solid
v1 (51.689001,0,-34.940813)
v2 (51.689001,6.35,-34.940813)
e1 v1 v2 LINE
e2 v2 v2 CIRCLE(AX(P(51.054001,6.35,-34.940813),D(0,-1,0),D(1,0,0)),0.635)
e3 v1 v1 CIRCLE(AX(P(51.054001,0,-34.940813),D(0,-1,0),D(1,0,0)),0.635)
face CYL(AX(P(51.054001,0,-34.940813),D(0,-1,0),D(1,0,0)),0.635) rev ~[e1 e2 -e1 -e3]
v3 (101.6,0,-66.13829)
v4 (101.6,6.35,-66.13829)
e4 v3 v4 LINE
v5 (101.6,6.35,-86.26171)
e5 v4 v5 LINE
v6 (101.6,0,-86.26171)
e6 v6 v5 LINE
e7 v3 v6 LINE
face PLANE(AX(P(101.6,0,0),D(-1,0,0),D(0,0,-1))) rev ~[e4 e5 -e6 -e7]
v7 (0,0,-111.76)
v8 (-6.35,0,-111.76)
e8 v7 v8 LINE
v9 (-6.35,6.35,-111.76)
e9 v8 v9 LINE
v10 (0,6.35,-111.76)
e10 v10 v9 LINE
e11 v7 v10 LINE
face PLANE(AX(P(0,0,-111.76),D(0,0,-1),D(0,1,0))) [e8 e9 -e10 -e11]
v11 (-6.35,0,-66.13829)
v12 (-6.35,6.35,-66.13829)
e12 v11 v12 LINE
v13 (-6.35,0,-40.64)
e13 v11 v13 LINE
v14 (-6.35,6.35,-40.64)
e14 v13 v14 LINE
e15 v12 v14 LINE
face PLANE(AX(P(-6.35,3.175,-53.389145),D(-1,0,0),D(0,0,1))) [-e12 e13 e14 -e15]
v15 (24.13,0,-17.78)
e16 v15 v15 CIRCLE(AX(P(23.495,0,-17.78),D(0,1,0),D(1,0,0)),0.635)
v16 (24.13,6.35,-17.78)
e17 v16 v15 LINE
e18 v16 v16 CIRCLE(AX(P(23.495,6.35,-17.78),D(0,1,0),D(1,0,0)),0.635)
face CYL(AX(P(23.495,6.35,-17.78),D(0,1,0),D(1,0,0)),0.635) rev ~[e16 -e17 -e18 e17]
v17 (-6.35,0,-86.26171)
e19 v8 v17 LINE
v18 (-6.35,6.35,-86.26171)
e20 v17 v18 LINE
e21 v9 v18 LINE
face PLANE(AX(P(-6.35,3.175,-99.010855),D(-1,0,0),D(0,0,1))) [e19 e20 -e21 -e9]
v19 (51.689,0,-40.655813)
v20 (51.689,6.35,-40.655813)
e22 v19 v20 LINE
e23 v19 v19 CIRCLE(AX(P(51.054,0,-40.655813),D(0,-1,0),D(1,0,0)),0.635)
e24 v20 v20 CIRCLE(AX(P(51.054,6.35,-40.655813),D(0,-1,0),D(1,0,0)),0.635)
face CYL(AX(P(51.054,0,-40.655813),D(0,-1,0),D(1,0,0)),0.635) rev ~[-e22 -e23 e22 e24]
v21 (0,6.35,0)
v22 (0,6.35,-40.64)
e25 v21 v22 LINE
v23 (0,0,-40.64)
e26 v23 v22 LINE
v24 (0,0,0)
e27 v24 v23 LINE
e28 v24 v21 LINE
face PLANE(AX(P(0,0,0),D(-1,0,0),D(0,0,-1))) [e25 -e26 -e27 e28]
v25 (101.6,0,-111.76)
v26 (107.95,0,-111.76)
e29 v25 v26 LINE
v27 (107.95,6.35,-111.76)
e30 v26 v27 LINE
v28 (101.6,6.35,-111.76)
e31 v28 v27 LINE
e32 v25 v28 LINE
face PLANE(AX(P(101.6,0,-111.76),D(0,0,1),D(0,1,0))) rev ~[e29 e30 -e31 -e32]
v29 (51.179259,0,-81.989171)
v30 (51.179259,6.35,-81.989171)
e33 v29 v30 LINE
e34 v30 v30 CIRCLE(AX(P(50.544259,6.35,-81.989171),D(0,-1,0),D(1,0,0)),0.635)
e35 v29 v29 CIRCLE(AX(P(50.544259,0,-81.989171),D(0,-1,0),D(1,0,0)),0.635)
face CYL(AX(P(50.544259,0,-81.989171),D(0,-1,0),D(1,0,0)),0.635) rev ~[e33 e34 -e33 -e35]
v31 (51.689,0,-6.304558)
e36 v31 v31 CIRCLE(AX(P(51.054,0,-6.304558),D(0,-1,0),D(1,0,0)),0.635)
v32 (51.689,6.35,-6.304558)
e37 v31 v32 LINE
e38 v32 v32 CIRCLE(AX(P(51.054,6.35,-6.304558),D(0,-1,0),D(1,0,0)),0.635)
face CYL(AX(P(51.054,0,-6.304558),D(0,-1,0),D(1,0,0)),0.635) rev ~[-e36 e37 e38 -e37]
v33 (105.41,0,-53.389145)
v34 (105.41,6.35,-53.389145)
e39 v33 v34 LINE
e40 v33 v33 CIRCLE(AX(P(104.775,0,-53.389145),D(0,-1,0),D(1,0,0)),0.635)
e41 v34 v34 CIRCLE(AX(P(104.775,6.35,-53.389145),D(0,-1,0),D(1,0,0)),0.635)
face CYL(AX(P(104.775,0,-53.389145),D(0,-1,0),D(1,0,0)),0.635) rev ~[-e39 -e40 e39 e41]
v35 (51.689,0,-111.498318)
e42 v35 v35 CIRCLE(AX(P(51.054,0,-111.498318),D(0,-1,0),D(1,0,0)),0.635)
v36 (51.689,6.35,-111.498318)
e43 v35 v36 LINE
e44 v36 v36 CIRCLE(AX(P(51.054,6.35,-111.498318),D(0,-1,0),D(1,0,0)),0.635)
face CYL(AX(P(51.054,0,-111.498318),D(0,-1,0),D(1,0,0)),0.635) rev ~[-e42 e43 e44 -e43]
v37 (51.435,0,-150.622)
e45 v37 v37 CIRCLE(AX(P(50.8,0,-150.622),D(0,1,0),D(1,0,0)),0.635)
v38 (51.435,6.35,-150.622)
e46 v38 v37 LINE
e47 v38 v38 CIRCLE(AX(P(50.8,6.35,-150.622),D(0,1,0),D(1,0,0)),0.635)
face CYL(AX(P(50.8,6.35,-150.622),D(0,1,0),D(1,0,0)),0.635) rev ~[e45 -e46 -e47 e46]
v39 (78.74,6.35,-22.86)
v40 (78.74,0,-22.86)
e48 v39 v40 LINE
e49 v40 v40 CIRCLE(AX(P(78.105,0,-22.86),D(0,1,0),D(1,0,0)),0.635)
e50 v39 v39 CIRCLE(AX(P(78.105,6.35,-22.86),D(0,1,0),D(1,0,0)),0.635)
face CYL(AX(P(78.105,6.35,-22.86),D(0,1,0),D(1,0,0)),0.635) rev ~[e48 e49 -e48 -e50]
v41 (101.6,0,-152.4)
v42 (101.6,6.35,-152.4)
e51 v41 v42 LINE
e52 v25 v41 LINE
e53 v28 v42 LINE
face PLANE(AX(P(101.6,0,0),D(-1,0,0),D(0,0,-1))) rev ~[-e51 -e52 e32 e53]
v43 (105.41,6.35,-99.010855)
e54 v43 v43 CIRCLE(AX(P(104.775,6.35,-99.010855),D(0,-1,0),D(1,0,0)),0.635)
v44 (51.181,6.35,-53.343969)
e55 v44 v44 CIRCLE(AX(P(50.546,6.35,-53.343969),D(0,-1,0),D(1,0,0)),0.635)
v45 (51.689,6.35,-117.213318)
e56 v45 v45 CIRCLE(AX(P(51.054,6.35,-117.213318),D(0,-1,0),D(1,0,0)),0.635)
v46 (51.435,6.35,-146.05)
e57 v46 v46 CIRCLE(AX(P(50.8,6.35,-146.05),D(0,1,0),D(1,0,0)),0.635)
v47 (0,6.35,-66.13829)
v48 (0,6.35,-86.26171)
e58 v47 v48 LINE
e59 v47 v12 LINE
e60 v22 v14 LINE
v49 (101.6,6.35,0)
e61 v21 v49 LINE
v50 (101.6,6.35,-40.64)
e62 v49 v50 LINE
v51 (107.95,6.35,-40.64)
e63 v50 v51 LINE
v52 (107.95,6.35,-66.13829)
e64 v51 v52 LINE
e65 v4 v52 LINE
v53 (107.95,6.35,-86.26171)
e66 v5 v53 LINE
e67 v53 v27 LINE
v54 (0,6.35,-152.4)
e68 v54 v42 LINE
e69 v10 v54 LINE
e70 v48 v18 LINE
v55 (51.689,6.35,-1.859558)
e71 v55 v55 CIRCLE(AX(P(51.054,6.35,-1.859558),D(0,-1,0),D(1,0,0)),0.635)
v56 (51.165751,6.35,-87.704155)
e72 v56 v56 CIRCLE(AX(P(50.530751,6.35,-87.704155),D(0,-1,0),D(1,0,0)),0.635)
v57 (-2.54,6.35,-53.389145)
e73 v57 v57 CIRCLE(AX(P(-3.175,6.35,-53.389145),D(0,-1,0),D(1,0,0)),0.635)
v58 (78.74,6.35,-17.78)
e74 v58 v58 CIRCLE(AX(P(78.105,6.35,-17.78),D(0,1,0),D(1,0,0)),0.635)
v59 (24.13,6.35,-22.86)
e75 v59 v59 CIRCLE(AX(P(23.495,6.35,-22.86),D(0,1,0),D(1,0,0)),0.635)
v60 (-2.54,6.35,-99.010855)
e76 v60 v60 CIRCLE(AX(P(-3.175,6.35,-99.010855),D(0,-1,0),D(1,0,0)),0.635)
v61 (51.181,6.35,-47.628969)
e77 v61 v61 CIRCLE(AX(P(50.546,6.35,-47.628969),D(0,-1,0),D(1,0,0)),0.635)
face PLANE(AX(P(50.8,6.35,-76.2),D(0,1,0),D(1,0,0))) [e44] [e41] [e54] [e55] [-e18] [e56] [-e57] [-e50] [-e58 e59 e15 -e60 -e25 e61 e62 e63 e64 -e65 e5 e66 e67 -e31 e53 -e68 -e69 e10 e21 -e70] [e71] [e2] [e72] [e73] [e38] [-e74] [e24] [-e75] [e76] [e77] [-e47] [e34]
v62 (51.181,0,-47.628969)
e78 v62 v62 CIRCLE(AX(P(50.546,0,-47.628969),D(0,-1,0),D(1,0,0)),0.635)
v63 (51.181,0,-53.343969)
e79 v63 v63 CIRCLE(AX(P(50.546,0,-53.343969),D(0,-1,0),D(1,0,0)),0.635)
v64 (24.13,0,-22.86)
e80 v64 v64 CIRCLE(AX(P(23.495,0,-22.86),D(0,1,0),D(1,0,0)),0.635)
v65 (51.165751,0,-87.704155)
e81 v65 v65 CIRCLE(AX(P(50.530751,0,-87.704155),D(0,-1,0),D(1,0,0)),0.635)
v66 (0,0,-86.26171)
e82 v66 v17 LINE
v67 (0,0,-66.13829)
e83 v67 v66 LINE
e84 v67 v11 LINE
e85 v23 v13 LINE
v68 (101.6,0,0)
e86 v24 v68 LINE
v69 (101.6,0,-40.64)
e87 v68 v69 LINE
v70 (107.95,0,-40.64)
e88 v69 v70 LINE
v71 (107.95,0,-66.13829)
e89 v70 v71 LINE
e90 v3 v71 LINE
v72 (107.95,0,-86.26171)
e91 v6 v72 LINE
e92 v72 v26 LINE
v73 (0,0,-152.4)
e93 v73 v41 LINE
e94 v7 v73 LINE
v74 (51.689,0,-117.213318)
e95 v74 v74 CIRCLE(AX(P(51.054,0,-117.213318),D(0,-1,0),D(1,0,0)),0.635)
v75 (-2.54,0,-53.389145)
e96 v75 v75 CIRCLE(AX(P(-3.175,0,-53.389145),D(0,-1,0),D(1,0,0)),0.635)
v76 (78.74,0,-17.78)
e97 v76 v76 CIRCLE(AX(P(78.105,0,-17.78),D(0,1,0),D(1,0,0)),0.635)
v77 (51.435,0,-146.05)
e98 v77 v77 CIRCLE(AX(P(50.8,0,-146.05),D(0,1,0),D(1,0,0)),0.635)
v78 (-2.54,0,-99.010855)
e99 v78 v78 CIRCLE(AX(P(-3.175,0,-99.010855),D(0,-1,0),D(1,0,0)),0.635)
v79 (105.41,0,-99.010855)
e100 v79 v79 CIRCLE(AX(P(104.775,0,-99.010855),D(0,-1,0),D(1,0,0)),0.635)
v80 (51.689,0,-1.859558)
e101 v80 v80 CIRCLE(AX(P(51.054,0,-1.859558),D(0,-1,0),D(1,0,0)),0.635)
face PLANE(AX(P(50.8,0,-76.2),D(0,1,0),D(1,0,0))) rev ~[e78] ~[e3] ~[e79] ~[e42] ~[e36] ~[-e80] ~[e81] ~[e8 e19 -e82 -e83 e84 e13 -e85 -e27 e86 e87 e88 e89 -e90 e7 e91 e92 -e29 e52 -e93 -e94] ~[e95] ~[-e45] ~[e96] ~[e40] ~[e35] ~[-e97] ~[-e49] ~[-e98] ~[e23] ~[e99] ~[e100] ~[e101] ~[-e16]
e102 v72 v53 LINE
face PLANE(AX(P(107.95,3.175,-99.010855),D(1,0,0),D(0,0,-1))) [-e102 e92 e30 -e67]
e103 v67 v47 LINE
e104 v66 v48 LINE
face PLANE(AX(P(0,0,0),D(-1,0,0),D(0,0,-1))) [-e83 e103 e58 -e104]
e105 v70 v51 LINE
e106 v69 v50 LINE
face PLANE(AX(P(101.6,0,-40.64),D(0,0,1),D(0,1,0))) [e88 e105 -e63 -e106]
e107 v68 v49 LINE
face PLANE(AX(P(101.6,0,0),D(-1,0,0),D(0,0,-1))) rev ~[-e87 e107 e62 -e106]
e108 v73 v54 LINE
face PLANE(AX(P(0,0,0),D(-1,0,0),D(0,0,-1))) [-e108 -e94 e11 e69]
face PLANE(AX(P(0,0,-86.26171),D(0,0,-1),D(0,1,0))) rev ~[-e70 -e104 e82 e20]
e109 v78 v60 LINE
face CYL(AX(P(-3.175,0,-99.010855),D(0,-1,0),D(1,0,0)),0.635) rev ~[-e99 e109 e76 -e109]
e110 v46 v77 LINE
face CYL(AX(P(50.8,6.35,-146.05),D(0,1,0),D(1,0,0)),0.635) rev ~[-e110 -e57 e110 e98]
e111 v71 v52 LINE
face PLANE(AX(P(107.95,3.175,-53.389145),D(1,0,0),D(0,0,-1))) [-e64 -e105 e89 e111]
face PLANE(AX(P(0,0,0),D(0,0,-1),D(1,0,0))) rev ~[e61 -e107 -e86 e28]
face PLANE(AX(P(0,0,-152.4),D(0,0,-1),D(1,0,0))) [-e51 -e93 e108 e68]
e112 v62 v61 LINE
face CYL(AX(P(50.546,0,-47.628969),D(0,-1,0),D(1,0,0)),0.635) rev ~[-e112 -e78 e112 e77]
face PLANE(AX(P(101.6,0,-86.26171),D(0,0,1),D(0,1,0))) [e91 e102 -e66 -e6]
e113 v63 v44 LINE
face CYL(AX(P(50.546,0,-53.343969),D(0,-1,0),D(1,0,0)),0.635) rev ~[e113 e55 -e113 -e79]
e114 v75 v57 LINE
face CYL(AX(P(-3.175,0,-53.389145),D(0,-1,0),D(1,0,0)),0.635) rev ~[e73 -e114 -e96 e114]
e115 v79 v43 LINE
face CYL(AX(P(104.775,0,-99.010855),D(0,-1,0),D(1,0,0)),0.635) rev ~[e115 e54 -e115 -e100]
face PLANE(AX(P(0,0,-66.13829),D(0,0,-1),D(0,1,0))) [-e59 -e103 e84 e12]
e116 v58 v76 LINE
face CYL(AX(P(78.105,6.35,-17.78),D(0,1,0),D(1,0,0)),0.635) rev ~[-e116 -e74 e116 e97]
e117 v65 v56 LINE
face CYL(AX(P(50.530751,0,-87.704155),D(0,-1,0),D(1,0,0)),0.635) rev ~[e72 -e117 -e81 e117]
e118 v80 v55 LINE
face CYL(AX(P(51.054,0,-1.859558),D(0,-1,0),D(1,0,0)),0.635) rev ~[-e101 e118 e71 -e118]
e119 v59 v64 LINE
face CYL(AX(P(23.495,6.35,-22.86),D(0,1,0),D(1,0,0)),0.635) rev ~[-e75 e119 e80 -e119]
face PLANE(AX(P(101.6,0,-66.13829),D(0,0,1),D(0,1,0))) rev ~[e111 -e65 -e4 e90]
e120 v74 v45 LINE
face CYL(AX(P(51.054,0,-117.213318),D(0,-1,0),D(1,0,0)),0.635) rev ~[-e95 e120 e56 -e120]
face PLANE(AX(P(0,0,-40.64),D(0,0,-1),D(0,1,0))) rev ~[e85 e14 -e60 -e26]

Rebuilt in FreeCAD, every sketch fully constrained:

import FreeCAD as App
import Part
import Sketcher
from FreeCAD import Vector
Q = App.Units.Quantity

doc = App.newDocument("Part")
body = doc.addObject("PartDesign::Body", "Body")

# Sketch on XZ plane
sketch1 = body.newObject("Sketcher::SketchObject", "Sketch")
sketch1.AttachmentSupport = (doc.getObject("XZ_Plane"), [""])
sketch1.MapMode = "FlatFace"
sketch1.addGeometry([
    Part.LineSegment(Vector(0, -152.4, 0), Vector(0, 0, 0)),
    Part.LineSegment(Vector(0, 0, 0), Vector(101.6, 0, 0)),
    Part.LineSegment(Vector(101.6, 0, 0), Vector(101.6, -152.4, 0)),
    Part.LineSegment(Vector(101.6, -152.4, 0), Vector(0, -152.4, 0)),
], False)
sketch1.addConstraint([
    Sketcher.Constraint("Coincident", 0, 2, 1, 1),
    Sketcher.Constraint("Coincident", 1, 2, 2, 1),
    Sketcher.Constraint("Coincident", 2, 2, 3, 1),
    Sketcher.Constraint("Coincident", 3, 2, 0, 1),
    Sketcher.Constraint("Vertical", 0),
    Sketcher.Constraint("Horizontal", 1),
    Sketcher.Constraint("Vertical", 2),
    Sketcher.Constraint("Horizontal", 3),
    Sketcher.Constraint("Coincident", 0, 2, -1, 1),
    Sketcher.Constraint("DistanceX", 1, 1, 1, 2, Q("4 in")),
    Sketcher.Constraint("DistanceY", 0, 1, 0, 2, Q("6 in")),
])
pad1 = body.newObject("PartDesign::Pad", "Pad")
pad1.Profile = sketch1
pad1.Length = Q("0.25 in")
pad1.Reversed = True

# Sketch on YZ plane
sketch2 = body.newObject("Sketcher::SketchObject", "Sketch001")
sketch2.AttachmentSupport = (doc.getObject("YZ_Plane"), [""])
sketch2.MapMode = "FlatFace"
sketch2.AttachmentOffset = App.Placement(Vector(0, 0, 4 * 25.4), App.Rotation())
sketch2.addGeometry([
    Part.LineSegment(Vector(6.35, -40.64, 0), Vector(0, -40.64, 0)),  # 0
    Part.LineSegment(Vector(0, -40.64, 0), Vector(0, -66.13829, 0)),  # 1
    Part.LineSegment(Vector(0, -66.13829, 0), Vector(6.35, -66.13829, 0)),  # 2
    Part.LineSegment(Vector(6.35, -66.13829, 0), Vector(6.35, -40.64, 0)),  # 3
    Part.LineSegment(Vector(6.35, -86.26171, 0), Vector(0, -86.26171, 0)),  # 4
    Part.LineSegment(Vector(0, -86.26171, 0), Vector(0, -111.76, 0)),  # 5
    Part.LineSegment(Vector(0, -111.76, 0), Vector(6.35, -111.76, 0)),  # 6
    Part.LineSegment(Vector(6.35, -111.76, 0), Vector(6.35, -86.26171, 0)),  # 7
], False)
sketch2.addConstraint([
    Sketcher.Constraint("Coincident", 0, 2, 1, 1),
    Sketcher.Constraint("Coincident", 1, 2, 2, 1),
    Sketcher.Constraint("Coincident", 2, 2, 3, 1),
    Sketcher.Constraint("Coincident", 3, 2, 0, 1),
    Sketcher.Constraint("Coincident", 4, 2, 5, 1),
    Sketcher.Constraint("Coincident", 5, 2, 6, 1),
    Sketcher.Constraint("Coincident", 6, 2, 7, 1),
    Sketcher.Constraint("Coincident", 7, 2, 4, 1),
    Sketcher.Constraint("Horizontal", 0),
    Sketcher.Constraint("Vertical", 1),
    Sketcher.Constraint("Horizontal", 2),
    Sketcher.Constraint("Vertical", 3),
    Sketcher.Constraint("Horizontal", 4),
    Sketcher.Constraint("Vertical", 5),
    Sketcher.Constraint("Horizontal", 6),
    Sketcher.Constraint("Vertical", 7),
    Sketcher.Constraint("PointOnObject", 0, 2, -2),
    Sketcher.Constraint("PointOnObject", 4, 2, -2),
    Sketcher.Constraint("Vertical", 3, 2, 6, 2),
    Sketcher.Constraint("Equal", 3, 5),
    Sketcher.Constraint("DistanceX", 0, 2, 0, 1, Q("0.25 in")),
    Sketcher.Constraint("DistanceY", 0, 2, -1, 1, Q("1.6 in")),
    Sketcher.Constraint("DistanceY", 5, 2, -1, 1, Q("4.4 in")),
    Sketcher.Constraint("DistanceY", 1, 2, 1, 1, Q("25.49829 mm")),
])
pad2 = body.newObject("PartDesign::Pad", "Pad001")
pad2.Profile = sketch2
pad2.Length = Q("0.25 in")

# Sketch on YZ plane
sketch3 = body.newObject("Sketcher::SketchObject", "Sketch002")
sketch3.AttachmentSupport = (doc.getObject("YZ_Plane"), [""])
sketch3.MapMode = "FlatFace"
sketch3.addGeometry([
    Part.LineSegment(Vector(6.35, -111.76, 0), Vector(0, -111.76, 0)),  # 0
    Part.LineSegment(Vector(0, -111.76, 0), Vector(0, -86.26171, 0)),  # 1
    Part.LineSegment(Vector(0, -86.26171, 0), Vector(6.35, -86.26171, 0)),  # 2
    Part.LineSegment(Vector(6.35, -86.26171, 0), Vector(6.35, -111.76, 0)),  # 3
    Part.LineSegment(Vector(6.35, -66.13829, 0), Vector(0, -66.13829, 0)),  # 4
    Part.LineSegment(Vector(0, -66.13829, 0), Vector(0, -40.64, 0)),  # 5
    Part.LineSegment(Vector(0, -40.64, 0), Vector(6.35, -40.64, 0)),  # 6
    Part.LineSegment(Vector(6.35, -40.64, 0), Vector(6.35, -66.13829, 0)),  # 7
], False)
sketch3.addConstraint([
    Sketcher.Constraint("Coincident", 0, 2, 1, 1),
    Sketcher.Constraint("Coincident", 1, 2, 2, 1),
    Sketcher.Constraint("Coincident", 2, 2, 3, 1),
    Sketcher.Constraint("Coincident", 3, 2, 0, 1),
    Sketcher.Constraint("Coincident", 4, 2, 5, 1),
    Sketcher.Constraint("Coincident", 5, 2, 6, 1),
    Sketcher.Constraint("Coincident", 6, 2, 7, 1),
    Sketcher.Constraint("Coincident", 7, 2, 4, 1),
    Sketcher.Constraint("Horizontal", 0),
    Sketcher.Constraint("Vertical", 1),
    Sketcher.Constraint("Horizontal", 2),
    Sketcher.Constraint("Vertical", 3),
    Sketcher.Constraint("Horizontal", 4),
    Sketcher.Constraint("Vertical", 5),
    Sketcher.Constraint("Horizontal", 6),
    Sketcher.Constraint("Vertical", 7),
    Sketcher.Constraint("PointOnObject", 0, 2, -2),
    Sketcher.Constraint("PointOnObject", 4, 2, -2),
    Sketcher.Constraint("Vertical", 3, 2, 6, 2),
    Sketcher.Constraint("Equal", 3, 5),
    Sketcher.Constraint("DistanceX", 0, 2, 0, 1, Q("0.25 in")),
    Sketcher.Constraint("DistanceY", 0, 2, -1, 1, Q("4.4 in")),
    Sketcher.Constraint("DistanceY", 5, 2, -1, 1, Q("1.6 in")),
    Sketcher.Constraint("DistanceY", 1, 1, 1, 2, Q("25.49829 mm")),
])
pad3 = body.newObject("PartDesign::Pad", "Pad002")
pad3.Profile = sketch3
pad3.Length = Q("0.25 in")
pad3.Reversed = True

# Sketch on XZ plane
sketch4 = body.newObject("Sketcher::SketchObject", "Sketch003")
sketch4.AttachmentSupport = (doc.getObject("XZ_Plane"), [""])
sketch4.MapMode = "FlatFace"
sketch4.addGeometry([
    Part.Circle(Vector(-3.175, -53.389145, 0), Vector(0, 0, 1), 0.635),
    Part.Circle(Vector(-3.175, -99.010855, 0), Vector(0, 0, 1), 0.635),
    Part.Circle(Vector(104.775, -53.389145, 0), Vector(0, 0, 1), 0.635),
    Part.Circle(Vector(104.775, -99.010855, 0), Vector(0, 0, 1), 0.635),
], False)
sketch4.addConstraint([
    Sketcher.Constraint("Equal", 0, 1),
    Sketcher.Constraint("Equal", 1, 2),
    Sketcher.Constraint("Equal", 2, 3),
    Sketcher.Constraint("Horizontal", 0, 3, 2, 3),
    Sketcher.Constraint("Horizontal", 1, 3, 3, 3),
    Sketcher.Constraint("Vertical", 0, 3, 1, 3),
    Sketcher.Constraint("Vertical", 2, 3, 3, 3),
    Sketcher.Constraint("Diameter", 0, Q("0.05 in")),
    Sketcher.Constraint("DistanceX", 0, 3, 2, 3, Q("4.25 in")),
    Sketcher.Constraint("DistanceX", 0, 3, -1, 1, Q("0.125 in")),
    Sketcher.Constraint("DistanceY", 1, 3, 0, 3, Q("45.62171 mm")),
    Sketcher.Constraint("DistanceY", 0, 3, -1, 1, Q("53.389145 mm")),
])
pocket1 = body.newObject("PartDesign::Pocket", "Pocket")
pocket1.Profile = sketch4
pocket1.Length = Q("0.25 in")

# Sketch on XZ plane
sketch5 = body.newObject("Sketcher::SketchObject", "Sketch004")
sketch5.AttachmentSupport = (doc.getObject("XZ_Plane"), [""])
sketch5.MapMode = "FlatFace"
sketch5.addGeometry([
    Part.Circle(Vector(51.054, -6.304558, 0), Vector(0, 0, 1), 0.635),  # 0
    Part.Circle(Vector(51.054001, -34.940813, 0), Vector(0, 0, 1), 0.635),  # 1
    Part.Circle(Vector(51.054, -40.655813, 0), Vector(0, 0, 1), 0.635),  # 2
    Part.Circle(Vector(51.054, -1.859558, 0), Vector(0, 0, 1), 0.635),  # 3
    Part.Circle(Vector(50.530751, -87.704155, 0), Vector(0, 0, 1), 0.635),  # 4
    Part.Circle(Vector(50.546, -47.628969, 0), Vector(0, 0, 1), 0.635),  # 5
    Part.Circle(Vector(50.546, -53.343969, 0), Vector(0, 0, 1), 0.635),  # 6
    Part.Circle(Vector(50.544259, -81.989171, 0), Vector(0, 0, 1), 0.635),  # 7
    Part.Circle(Vector(51.054, -111.498318, 0), Vector(0, 0, 1), 0.635),  # 8
    Part.Circle(Vector(51.054, -117.213318, 0), Vector(0, 0, 1), 0.635),  # 9
], False)
sketch5.addConstraint([
    Sketcher.Constraint("Equal", 0, 1),
    Sketcher.Constraint("Equal", 1, 2),
    Sketcher.Constraint("Equal", 2, 3),
    Sketcher.Constraint("Equal", 3, 4),
    Sketcher.Constraint("Equal", 4, 5),
    Sketcher.Constraint("Equal", 5, 6),
    Sketcher.Constraint("Equal", 6, 7),
    Sketcher.Constraint("Equal", 7, 8),
    Sketcher.Constraint("Equal", 8, 9),
    Sketcher.Constraint("Vertical", 0, 3, 1, 3),
    Sketcher.Constraint("Vertical", 1, 3, 2, 3),
    Sketcher.Constraint("Vertical", 2, 3, 3, 3),
    Sketcher.Constraint("Vertical", 5, 3, 6, 3),
    Sketcher.Constraint("Vertical", 3, 3, 8, 3),
    Sketcher.Constraint("Vertical", 8, 3, 9, 3),
    Sketcher.Constraint("Diameter", 0, Q("0.05 in")),
    Sketcher.Constraint("DistanceX", -1, 1, 0, 3, Q("2.01 in")),
    Sketcher.Constraint("DistanceX", -1, 1, 5, 3, Q("1.99 in")),
    Sketcher.Constraint("DistanceY", 2, 3, 1, 3, Q("0.225 in")),
    Sketcher.Constraint("DistanceY", 0, 3, 3, 3, Q("0.175 in")),
    Sketcher.Constraint("DistanceY", 6, 3, 5, 3, Q("0.225 in")),
    Sketcher.Constraint("DistanceY", 9, 3, 8, 3, Q("0.225 in")),
    Sketcher.Constraint("DistanceY", 7, 3, 6, 3, Q("28.645202 mm")),
    Sketcher.Constraint("DistanceY", 0, 3, -1, 1, Q("6.304558 mm")),
    Sketcher.Constraint("DistanceX", -1, 1, 4, 3, Q("50.530751 mm")),
    Sketcher.Constraint("DistanceY", 5, 3, -1, 1, Q("47.628969 mm")),
    Sketcher.Constraint("DistanceX", -1, 1, 7, 3, Q("50.544259 mm")),
    Sketcher.Constraint("DistanceY", 4, 3, 2, 3, Q("47.048342 mm")),
    Sketcher.Constraint("DistanceY", 8, 3, 6, 3, Q("58.154349 mm")),
    Sketcher.Constraint("DistanceY", 1, 3, -1, 1, Q("34.940813 mm")),
])
pocket2 = body.newObject("PartDesign::Pocket", "Pocket001")
pocket2.Profile = sketch5
pocket2.Type = "ThroughAll"

# Sketch on XZ plane
sketch6 = body.newObject("Sketcher::SketchObject", "Sketch005")
sketch6.AttachmentSupport = (doc.getObject("XZ_Plane"), [""])
sketch6.MapMode = "FlatFace"
sketch6.AttachmentOffset = App.Placement(Vector(0, 0, -0.25 * 25.4), App.Rotation())
sketch6.addGeometry([
    Part.Circle(Vector(23.495, -17.78, 0), Vector(0, 0, 1), 0.635),
    Part.Circle(Vector(23.495, -22.86, 0), Vector(0, 0, 1), 0.635),
    Part.Circle(Vector(78.105, -22.86, 0), Vector(0, 0, 1), 0.635),
    Part.Circle(Vector(78.105, -17.78, 0), Vector(0, 0, 1), 0.635),
], False)
sketch6.addConstraint([
    Sketcher.Constraint("Equal", 0, 1),
    Sketcher.Constraint("Equal", 1, 2),
    Sketcher.Constraint("Equal", 2, 3),
    Sketcher.Constraint("Horizontal", 1, 3, 2, 3),
    Sketcher.Constraint("Horizontal", 0, 3, 3, 3),
    Sketcher.Constraint("Vertical", 0, 3, 1, 3),
    Sketcher.Constraint("Vertical", 2, 3, 3, 3),
    Sketcher.Constraint("Diameter", 0, Q("0.05 in")),
    Sketcher.Constraint("DistanceY", 0, 3, -1, 1, Q("0.7 in")),
    Sketcher.Constraint("DistanceY", 1, 3, -1, 1, Q("0.9 in")),
    Sketcher.Constraint("DistanceX", 1, 3, 2, 3, Q("2.15 in")),
    Sketcher.Constraint("DistanceX", -1, 1, 0, 3, Q("0.925 in")),
])
pocket3 = body.newObject("PartDesign::Pocket", "Pocket002")
pocket3.Profile = sketch6
pocket3.Type = "ThroughAll"
pocket3.Reversed = True

# Sketch on XZ plane
sketch7 = body.newObject("Sketcher::SketchObject", "Sketch006")
sketch7.AttachmentSupport = (doc.getObject("XZ_Plane"), [""])
sketch7.MapMode = "FlatFace"
sketch7.AttachmentOffset = App.Placement(Vector(0, 0, -0.25 * 25.4), App.Rotation())
sketch7.addGeometry([
    Part.Circle(Vector(50.8, -150.622, 0), Vector(0, 0, 1), 0.635),
    Part.Circle(Vector(50.8, -146.05, 0), Vector(0, 0, 1), 0.635),
], False)
sketch7.addConstraint([
    Sketcher.Constraint("Equal", 0, 1),
    Sketcher.Constraint("Vertical", 0, 3, 1, 3),
    Sketcher.Constraint("Diameter", 0, Q("0.05 in")),
    Sketcher.Constraint("DistanceX", -1, 1, 0, 3, Q("2 in")),
    Sketcher.Constraint("DistanceY", 0, 3, -1, 1, Q("5.93 in")),
    Sketcher.Constraint("DistanceY", 1, 3, -1, 1, Q("5.75 in")),
])
pocket4 = body.newObject("PartDesign::Pocket", "Pocket003")
pocket4.Profile = sketch7
pocket4.Type = "ThroughAll"
pocket4.Reversed = True

doc.recompute()
